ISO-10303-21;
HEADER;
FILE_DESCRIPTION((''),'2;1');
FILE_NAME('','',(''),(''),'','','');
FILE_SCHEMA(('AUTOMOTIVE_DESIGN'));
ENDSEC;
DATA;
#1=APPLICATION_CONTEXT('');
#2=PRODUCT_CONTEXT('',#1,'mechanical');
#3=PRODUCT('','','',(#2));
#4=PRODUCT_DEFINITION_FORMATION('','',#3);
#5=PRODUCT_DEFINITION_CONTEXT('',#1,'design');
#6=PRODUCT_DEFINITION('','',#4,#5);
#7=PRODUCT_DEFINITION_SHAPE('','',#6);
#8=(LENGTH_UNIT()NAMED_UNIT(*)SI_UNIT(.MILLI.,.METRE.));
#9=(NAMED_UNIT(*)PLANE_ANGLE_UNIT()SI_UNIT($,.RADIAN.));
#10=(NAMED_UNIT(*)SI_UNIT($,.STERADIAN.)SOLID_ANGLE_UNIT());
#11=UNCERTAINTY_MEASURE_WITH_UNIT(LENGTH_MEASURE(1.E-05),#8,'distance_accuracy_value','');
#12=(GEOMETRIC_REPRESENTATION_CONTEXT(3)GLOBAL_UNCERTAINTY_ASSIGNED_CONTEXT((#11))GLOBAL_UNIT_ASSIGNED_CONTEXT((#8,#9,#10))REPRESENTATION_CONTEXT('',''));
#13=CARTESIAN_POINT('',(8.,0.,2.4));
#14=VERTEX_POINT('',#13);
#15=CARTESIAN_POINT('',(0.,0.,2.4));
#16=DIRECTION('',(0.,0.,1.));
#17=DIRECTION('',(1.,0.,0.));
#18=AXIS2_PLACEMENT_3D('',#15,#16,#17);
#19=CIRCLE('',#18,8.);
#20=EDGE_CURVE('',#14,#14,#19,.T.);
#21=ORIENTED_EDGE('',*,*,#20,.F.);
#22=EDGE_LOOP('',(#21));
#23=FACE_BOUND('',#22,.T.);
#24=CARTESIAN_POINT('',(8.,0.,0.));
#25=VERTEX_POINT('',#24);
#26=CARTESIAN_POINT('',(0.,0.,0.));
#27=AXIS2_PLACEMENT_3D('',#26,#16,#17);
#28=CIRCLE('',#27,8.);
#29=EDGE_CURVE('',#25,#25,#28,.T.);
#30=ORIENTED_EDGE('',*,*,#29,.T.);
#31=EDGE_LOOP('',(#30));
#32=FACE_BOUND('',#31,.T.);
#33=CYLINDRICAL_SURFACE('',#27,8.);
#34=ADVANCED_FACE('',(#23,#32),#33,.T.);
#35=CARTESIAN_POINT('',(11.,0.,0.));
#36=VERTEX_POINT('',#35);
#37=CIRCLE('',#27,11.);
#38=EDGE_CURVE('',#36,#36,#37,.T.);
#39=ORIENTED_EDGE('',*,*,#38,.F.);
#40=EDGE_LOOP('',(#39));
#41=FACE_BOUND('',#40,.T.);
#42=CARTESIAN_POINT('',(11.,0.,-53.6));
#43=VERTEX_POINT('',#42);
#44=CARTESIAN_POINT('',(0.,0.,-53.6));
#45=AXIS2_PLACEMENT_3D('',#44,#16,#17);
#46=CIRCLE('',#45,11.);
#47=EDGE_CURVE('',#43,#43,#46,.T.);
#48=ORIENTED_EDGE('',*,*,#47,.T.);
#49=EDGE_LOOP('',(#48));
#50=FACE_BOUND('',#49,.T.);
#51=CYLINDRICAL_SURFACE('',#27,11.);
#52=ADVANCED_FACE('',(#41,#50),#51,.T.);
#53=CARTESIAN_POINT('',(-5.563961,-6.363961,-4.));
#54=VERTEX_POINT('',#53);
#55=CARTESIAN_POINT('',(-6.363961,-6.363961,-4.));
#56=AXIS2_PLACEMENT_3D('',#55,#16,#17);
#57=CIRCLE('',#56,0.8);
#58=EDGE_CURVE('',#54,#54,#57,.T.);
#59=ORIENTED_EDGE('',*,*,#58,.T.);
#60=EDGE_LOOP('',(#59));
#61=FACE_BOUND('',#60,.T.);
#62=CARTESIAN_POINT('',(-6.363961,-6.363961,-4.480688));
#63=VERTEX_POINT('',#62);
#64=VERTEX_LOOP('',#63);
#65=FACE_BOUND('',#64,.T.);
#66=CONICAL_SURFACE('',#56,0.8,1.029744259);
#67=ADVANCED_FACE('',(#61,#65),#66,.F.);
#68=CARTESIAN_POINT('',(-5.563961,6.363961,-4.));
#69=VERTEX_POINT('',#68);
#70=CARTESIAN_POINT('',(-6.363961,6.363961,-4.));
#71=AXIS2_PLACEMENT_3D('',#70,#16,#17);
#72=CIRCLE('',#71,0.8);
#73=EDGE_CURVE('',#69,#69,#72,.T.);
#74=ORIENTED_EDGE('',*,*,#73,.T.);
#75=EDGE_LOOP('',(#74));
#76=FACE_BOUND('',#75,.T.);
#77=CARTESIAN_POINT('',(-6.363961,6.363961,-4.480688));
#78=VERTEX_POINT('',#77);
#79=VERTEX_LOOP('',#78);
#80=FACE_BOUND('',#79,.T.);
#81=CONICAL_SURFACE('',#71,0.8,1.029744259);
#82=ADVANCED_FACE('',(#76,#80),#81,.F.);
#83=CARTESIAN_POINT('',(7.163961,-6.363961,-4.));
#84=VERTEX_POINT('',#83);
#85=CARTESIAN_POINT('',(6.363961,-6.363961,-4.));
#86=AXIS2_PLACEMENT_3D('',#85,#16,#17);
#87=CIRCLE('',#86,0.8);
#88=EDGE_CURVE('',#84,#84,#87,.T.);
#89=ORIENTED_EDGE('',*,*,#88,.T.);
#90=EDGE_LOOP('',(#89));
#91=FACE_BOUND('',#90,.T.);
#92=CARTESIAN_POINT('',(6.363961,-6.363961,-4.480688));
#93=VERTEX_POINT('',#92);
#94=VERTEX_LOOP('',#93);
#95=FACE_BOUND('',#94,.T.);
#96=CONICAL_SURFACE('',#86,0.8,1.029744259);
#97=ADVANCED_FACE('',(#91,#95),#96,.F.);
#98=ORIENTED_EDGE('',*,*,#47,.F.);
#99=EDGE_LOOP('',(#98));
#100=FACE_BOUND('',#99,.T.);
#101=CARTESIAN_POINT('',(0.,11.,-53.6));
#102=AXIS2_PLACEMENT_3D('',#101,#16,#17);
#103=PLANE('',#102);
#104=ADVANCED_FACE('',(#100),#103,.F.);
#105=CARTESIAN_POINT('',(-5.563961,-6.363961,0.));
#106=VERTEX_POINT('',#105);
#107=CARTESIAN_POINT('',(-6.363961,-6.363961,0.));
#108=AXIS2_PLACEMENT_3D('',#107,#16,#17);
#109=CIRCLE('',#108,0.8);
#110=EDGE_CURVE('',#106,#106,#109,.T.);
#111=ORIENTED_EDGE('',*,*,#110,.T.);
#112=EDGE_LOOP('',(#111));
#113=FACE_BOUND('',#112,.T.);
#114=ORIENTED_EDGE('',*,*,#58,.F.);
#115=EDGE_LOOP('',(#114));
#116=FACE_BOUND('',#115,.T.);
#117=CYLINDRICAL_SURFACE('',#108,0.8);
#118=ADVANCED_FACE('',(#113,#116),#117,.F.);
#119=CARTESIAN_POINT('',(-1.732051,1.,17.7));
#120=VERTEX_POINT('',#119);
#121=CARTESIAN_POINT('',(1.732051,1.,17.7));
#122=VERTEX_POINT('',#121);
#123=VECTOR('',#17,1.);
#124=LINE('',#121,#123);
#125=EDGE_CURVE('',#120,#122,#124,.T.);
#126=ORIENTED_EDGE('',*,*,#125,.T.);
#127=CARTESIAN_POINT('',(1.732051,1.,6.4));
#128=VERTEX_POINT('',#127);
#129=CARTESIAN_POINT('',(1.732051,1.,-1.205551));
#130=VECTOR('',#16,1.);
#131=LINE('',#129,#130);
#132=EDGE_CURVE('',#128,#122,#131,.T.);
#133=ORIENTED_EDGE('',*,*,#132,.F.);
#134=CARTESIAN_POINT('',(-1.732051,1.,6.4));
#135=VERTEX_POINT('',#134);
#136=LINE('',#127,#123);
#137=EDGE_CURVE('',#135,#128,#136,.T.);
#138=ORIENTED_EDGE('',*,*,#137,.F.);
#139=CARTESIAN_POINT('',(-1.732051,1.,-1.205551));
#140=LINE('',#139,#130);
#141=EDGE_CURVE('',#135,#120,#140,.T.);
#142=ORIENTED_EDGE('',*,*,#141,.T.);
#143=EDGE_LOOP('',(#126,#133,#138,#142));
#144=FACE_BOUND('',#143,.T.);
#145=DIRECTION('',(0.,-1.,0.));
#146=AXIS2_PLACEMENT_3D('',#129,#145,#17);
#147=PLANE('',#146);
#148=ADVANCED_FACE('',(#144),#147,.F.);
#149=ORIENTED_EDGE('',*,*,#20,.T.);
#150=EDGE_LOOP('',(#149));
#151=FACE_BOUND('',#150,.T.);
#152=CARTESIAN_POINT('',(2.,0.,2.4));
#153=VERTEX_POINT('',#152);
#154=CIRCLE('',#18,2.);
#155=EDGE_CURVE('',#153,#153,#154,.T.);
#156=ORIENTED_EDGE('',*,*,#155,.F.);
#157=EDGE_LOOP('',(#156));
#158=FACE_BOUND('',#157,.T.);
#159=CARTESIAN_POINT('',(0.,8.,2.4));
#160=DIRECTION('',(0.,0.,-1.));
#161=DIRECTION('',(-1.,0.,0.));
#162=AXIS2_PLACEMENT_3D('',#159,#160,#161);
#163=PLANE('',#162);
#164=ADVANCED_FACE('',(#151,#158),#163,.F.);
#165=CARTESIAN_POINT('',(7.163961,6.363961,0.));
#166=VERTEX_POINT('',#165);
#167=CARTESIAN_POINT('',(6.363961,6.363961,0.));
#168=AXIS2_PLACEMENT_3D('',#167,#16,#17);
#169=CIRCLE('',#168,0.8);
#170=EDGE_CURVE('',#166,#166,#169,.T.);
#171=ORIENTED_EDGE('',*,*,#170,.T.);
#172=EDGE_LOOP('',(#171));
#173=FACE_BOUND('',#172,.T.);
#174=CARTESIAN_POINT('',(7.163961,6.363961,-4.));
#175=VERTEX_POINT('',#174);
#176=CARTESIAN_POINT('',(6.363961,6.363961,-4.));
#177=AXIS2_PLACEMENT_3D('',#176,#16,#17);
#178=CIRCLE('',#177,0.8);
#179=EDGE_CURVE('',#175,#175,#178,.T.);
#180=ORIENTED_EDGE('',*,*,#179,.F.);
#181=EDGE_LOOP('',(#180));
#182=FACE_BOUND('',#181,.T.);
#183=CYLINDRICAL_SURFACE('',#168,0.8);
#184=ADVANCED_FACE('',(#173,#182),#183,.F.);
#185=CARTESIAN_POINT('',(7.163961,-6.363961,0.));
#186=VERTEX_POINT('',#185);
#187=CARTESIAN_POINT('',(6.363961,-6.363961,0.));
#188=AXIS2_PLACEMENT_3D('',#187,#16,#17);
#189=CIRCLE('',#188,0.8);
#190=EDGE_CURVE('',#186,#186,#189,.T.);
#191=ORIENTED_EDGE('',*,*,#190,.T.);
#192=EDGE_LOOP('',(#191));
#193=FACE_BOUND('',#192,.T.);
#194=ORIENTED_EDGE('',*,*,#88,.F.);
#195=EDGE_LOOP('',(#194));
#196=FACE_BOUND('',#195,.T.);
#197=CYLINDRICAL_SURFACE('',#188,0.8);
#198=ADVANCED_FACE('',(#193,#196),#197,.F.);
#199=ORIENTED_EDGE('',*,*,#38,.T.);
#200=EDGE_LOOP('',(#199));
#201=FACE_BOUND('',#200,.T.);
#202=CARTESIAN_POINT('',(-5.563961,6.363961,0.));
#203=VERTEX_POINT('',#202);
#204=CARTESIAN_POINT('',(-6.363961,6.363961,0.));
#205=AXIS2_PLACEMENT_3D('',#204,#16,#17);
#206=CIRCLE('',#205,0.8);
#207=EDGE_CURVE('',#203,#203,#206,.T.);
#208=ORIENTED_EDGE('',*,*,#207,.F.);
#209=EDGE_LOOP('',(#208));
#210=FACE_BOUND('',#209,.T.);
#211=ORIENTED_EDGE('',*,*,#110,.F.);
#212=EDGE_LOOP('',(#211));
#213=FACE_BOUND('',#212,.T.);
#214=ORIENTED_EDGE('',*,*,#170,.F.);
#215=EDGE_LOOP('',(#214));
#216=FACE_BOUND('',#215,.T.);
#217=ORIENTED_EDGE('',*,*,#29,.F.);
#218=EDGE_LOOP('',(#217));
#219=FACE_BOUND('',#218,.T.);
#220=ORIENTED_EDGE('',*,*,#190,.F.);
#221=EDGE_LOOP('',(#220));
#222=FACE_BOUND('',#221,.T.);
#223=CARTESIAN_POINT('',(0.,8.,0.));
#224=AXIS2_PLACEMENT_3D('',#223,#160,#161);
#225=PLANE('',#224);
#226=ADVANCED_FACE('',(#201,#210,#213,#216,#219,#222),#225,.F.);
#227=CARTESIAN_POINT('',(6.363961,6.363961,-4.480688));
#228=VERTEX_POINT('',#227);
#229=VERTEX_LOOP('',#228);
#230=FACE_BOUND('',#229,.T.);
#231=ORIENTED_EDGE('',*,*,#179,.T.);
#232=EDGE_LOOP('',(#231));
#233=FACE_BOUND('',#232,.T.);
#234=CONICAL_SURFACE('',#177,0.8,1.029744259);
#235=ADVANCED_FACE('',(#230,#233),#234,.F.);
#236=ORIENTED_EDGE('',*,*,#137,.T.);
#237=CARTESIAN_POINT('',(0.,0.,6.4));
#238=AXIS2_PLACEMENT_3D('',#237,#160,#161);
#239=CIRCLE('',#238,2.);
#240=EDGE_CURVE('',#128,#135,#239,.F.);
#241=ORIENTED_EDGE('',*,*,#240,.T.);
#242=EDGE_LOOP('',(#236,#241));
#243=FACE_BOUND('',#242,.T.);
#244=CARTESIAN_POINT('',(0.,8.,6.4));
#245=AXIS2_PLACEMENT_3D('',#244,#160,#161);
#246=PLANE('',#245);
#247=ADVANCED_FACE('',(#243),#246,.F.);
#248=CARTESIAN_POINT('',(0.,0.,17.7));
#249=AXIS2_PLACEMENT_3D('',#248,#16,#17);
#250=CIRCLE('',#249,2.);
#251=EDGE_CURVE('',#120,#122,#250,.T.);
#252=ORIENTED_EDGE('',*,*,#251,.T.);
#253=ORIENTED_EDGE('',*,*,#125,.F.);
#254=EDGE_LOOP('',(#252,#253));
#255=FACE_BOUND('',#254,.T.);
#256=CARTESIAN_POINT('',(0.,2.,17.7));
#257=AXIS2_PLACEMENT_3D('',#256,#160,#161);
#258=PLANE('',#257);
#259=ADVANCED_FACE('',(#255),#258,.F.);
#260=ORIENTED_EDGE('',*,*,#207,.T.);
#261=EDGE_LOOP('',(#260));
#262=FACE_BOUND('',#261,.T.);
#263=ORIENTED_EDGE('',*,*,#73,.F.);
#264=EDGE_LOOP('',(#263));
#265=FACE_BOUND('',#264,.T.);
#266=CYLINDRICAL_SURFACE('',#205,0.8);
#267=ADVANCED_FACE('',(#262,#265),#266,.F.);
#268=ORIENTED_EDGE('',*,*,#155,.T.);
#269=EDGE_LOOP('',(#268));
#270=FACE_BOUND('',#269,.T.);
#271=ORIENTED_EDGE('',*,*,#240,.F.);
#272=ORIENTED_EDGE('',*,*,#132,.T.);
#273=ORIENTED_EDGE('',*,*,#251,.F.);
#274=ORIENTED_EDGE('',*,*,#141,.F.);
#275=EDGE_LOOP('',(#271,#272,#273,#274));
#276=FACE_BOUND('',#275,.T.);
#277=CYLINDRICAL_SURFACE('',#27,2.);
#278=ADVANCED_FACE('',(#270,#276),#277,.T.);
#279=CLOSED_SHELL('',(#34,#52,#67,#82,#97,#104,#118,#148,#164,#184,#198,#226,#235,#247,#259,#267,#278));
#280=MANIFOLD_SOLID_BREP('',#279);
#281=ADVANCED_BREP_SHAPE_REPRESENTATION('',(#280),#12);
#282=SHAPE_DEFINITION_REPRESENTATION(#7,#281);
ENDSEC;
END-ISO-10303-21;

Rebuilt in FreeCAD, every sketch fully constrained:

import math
import FreeCAD as App
import Part
import Sketcher
from FreeCAD import Vector
Q = App.Units.Quantity

doc = App.newDocument("Part")
params = doc.addObject("Spreadsheet::Sheet", "Params")
for row, (alias, value) in enumerate([
    ("sketch1_width", "3 mm"),
    ("sketch1_width2", "6 mm"),
    ("sketch1_width3", "2 mm"),
    ("sketch1_height", "2.4 mm"),
    ("sketch1_height2", "15.3 mm"),
    ("revolution_angle", "360 deg"),
    ("sketch2_radius", "2 mm"),
    ("pocket1_length", "11.3 mm"),
    ("sketch3_diameter", "1.6 mm"),
    ("hole_diameter", "1.6 mm"),
    ("hole_depth", "4 mm"),
], start=1):
    params.set(f"A{row}", alias)
    params.set(f"B{row}", "=" + value)
    params.setAlias(f"B{row}", alias)

body = doc.addObject("PartDesign::Body", "Body")

sketch1 = doc.addObject("Sketcher::SketchObject", "Sketch")
body.addObject(sketch1)
sketch1.AttachmentSupport = (doc.YZ_Plane, [""])
sketch1.MapMode = "FlatFace"
sketch1.addGeometry([
    Part.LineSegment(Vector(11, 0, 0), Vector(8, 0, 0)),
    Part.LineSegment(Vector(8, 0, 0), Vector(8, 2.4, 0)),
    Part.LineSegment(Vector(8, 2.4, 0), Vector(2, 2.4, 0)),
    Part.LineSegment(Vector(2, 2.4, 0), Vector(2, 17.7, 0)),
    Part.LineSegment(Vector(2, 17.7, 0), Vector(0, 17.7, 0)),
    Part.LineSegment(Vector(0, 17.7, 0), Vector(0, -53.6, 0)),
    Part.LineSegment(Vector(0, -53.6, 0), Vector(11, -53.6, 0)),
    Part.LineSegment(Vector(11, -53.6, 0), Vector(11, 0, 0)),
], False)
sketch1.addConstraint([
    Sketcher.Constraint("Coincident", 0, 2, 1, 1),
    Sketcher.Constraint("Coincident", 1, 2, 2, 1),
    Sketcher.Constraint("Coincident", 2, 2, 3, 1),
    Sketcher.Constraint("Coincident", 3, 2, 4, 1),
    Sketcher.Constraint("Coincident", 4, 2, 5, 1),
    Sketcher.Constraint("Coincident", 5, 2, 6, 1),
    Sketcher.Constraint("Coincident", 6, 2, 7, 1),
    Sketcher.Constraint("Coincident", 7, 2, 0, 1),
    Sketcher.Constraint("Horizontal", 0),
    Sketcher.Constraint("Vertical", 1),
    Sketcher.Constraint("Horizontal", 2),
    Sketcher.Constraint("Vertical", 3),
    Sketcher.Constraint("Horizontal", 4),
    Sketcher.Constraint("Vertical", 5),
    Sketcher.Constraint("Horizontal", 6),
    Sketcher.Constraint("Vertical", 7),
    Sketcher.Constraint("PointOnObject", 0, 2, -1),
    Sketcher.Constraint("PointOnObject", 4, 2, -2),
    Sketcher.Constraint("DistanceX", 0, 2, 0, 1, Q("3 mm")),
    Sketcher.Constraint("DistanceX", 2, 2, 2, 1, Q("6 mm")),
    Sketcher.Constraint("DistanceX", 4, 2, 4, 1, Q("2 mm")),
    Sketcher.Constraint("DistanceY", 1, 1, 1, 2, Q("2.4 mm")),
    Sketcher.Constraint("DistanceY", 3, 1, 3, 2, Q("15.3 mm")),
    Sketcher.Constraint("DistanceY", 5, 2, 5, 1, Q("71.3 mm")),
])
sketch1.setExpression("Constraints[18]", "Params.sketch1_width")
sketch1.setExpression("Constraints[19]", "Params.sketch1_width2")
sketch1.setExpression("Constraints[20]", "Params.sketch1_width3")
sketch1.setExpression("Constraints[21]", "Params.sketch1_height")
sketch1.setExpression("Constraints[22]", "Params.sketch1_height2")
revolution = doc.addObject("PartDesign::Revolution", "Revolution")
body.addObject(revolution)
revolution.Profile = sketch1
revolution.ReferenceAxis = (sketch1, ["V_Axis"])
revolution.setExpression("Angle", "Params.revolution_angle")

sketch2 = doc.addObject("Sketcher::SketchObject", "Sketch001")
body.addObject(sketch2)
sketch2.AttachmentSupport = (doc.XY_Plane, [""])
sketch2.MapMode = "FlatFace"
sketch2.AttachmentOffset = App.Placement(Vector(0, 0, 17.7), App.Rotation())
sketch2.addGeometry([
    Part.LineSegment(Vector(-1.732051, 1, 0), Vector(1.732051, 1, 0)),
    Part.ArcOfCircle(Part.Circle(Vector(0, 0, 0), Vector(0, 0, 1), 2), math.radians(30), math.radians(90)),
    Part.ArcOfCircle(Part.Circle(Vector(0, 0, 0), Vector(0, 0, 1), 2), math.radians(90), math.radians(150)),
], False)
sketch2.addConstraint([
    Sketcher.Constraint("Coincident", 0, 2, 1, 1),
    Sketcher.Constraint("Tangent", 1, 2, 2, 1),
    Sketcher.Constraint("Coincident", 2, 2, 0, 1),
    Sketcher.Constraint("Horizontal", 0),
    Sketcher.Constraint("Coincident", 1, 3, -1, 1),
    Sketcher.Constraint("Equal", 1, 2),
    Sketcher.Constraint("PointOnObject", 1, 2, -2),
    Sketcher.Constraint("Radius", 1, Q("2 mm")),
    Sketcher.Constraint("DistanceY", -1, 1, 0, 2, Q("1 mm")),
])
sketch2.setExpression("Constraints[7]", "Params.sketch2_radius")
pocket1 = doc.addObject("PartDesign::Pocket", "Pocket")
body.addObject(pocket1)
pocket1.Profile = sketch2
pocket1.setExpression("Length", "Params.pocket1_length")

sketch3 = doc.addObject("Sketcher::SketchObject", "Sketch002")
body.addObject(sketch3)
sketch3.AttachmentSupport = (doc.XY_Plane, [""])
sketch3.MapMode = "FlatFace"
sketch3.addGeometry([
    Part.Circle(Vector(6.363961, 6.363961, 0), Vector(0, 0, 1), 0.8),
    Part.Circle(Vector(6.363961, -6.363961, 0), Vector(0, 0, 1), 0.8),
    Part.Circle(Vector(-6.363961, -6.363961, 0), Vector(0, 0, 1), 0.8),
    Part.Circle(Vector(-6.363961, 6.363961, 0), Vector(0, 0, 1), 0.8),
], False)
sketch3.addConstraint([
    Sketcher.Constraint("Equal", 0, 1),
    Sketcher.Constraint("Equal", 1, 2),
    Sketcher.Constraint("Equal", 2, 3),
    Sketcher.Constraint("Symmetric", 0, 3, 2, 3, -1, 1),
    Sketcher.Constraint("Symmetric", 1, 3, 3, 3, -1, 1),
    Sketcher.Constraint("Symmetric", 1, 3, 2, 3, -2),
    Sketcher.Constraint("Diameter", 0, Q("1.6 mm")),
    Sketcher.Constraint("DistanceX", -1, 1, 0, 3, Q("6.363961 mm")),
    Sketcher.Constraint("DistanceY", -1, 1, 0, 3, Q("6.363961 mm")),
])
sketch3.setExpression("Constraints[6]", "Params.sketch3_diameter")
doc.recompute()
hole = doc.addObject("PartDesign::Hole", "Hole")
body.addObject(hole)
hole.Profile = sketch3
hole.ThreadType = "None"
hole.setExpression("Diameter", "Params.hole_diameter")
hole.DepthType = "Dimension"
hole.setExpression("Depth", "Params.hole_depth")
hole.DrillPoint = "Angled"
hole.DrillPointAngle = 118

doc.recompute()
